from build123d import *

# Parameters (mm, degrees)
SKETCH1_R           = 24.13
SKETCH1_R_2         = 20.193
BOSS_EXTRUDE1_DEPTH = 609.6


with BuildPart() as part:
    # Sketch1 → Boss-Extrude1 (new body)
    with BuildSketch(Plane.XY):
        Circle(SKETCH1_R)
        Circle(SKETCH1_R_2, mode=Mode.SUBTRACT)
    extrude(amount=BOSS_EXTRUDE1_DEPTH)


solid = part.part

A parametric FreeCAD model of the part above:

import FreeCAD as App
import Part
import Sketcher
Q = App.Units.Quantity

doc = App.newDocument("Part")
body = doc.addObject("PartDesign::Body", "Body")

# Sketch on XY plane
sketch1 = doc.addObject("Sketcher::SketchObject", "Sketch")
body.addObject(sketch1)
sketch1.AttachmentSupport = (doc.XY_Plane, [""])
sketch1.MapMode = "FlatFace"
sketch1.addGeometry([
    Part.Circle(App.Vector(0, 0, 0), App.Vector(0, 0, 1), 24),
    Part.Circle(App.Vector(0, 0, 0), App.Vector(0, 0, 1), 20),
], False)
sketch1.addConstraint([
    Sketcher.Constraint("Coincident", 0, 3, -1, 1),
    Sketcher.Constraint("Coincident", 1, 3, -1, 1),
    Sketcher.Constraint("Diameter", 0, Q("1.9 in")),
    Sketcher.Constraint("Diameter", 1, Q("1.59 in")),
])
pad1 = doc.addObject("PartDesign::Pad", "Pad")
body.addObject(pad1)
pad1.Profile = sketch1
pad1.Length = Q("24 in")

doc.recompute()
